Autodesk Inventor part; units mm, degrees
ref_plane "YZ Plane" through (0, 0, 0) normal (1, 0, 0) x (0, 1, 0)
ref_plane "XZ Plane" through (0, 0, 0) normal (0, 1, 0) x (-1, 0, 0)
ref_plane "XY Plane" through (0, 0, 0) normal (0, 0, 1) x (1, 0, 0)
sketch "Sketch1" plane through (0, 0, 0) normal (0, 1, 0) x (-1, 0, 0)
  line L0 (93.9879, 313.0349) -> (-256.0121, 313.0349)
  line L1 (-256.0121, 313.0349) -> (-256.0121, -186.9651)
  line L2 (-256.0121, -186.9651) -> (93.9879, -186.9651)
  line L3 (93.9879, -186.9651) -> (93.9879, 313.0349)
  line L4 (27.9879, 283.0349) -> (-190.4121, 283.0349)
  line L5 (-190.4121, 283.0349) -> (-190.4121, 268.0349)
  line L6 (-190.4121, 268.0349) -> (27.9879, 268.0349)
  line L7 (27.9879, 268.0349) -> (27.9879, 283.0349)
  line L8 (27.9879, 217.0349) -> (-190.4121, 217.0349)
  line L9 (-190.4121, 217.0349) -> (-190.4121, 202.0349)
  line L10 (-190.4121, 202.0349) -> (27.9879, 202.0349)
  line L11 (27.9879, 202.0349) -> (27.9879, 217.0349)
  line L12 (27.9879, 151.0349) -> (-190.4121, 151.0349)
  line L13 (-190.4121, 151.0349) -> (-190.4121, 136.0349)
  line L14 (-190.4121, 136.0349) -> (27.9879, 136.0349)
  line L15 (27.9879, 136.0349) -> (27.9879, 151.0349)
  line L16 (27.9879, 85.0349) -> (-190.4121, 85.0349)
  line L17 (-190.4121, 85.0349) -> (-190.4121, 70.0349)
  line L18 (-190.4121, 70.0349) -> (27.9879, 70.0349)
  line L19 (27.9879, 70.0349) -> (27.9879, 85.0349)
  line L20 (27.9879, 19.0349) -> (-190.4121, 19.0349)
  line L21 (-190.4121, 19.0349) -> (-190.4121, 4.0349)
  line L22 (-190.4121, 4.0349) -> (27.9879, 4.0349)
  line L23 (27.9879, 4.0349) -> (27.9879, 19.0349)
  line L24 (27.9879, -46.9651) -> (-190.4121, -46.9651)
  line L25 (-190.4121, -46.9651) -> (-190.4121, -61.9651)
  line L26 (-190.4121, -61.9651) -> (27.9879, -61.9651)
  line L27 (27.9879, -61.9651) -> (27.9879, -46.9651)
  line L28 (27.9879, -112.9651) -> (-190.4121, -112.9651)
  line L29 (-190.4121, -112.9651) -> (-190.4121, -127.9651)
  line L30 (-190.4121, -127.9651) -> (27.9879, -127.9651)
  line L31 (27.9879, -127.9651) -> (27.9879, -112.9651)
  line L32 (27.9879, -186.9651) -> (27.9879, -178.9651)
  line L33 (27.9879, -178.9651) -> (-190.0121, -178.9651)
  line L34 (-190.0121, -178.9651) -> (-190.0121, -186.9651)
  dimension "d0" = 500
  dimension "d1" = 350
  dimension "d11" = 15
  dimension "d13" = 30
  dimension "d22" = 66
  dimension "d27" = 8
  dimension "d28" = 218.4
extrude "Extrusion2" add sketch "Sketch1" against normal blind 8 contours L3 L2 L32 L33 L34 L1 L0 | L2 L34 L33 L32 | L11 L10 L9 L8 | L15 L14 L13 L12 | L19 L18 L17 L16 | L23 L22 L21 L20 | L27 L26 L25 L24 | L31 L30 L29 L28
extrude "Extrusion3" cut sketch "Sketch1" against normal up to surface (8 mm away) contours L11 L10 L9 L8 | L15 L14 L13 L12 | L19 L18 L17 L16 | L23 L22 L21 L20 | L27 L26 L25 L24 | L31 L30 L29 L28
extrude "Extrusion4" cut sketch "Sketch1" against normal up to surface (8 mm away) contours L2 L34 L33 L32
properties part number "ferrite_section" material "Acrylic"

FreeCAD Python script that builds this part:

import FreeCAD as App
import Part
import Sketcher
from FreeCAD import Vector


def add_polygon(sketch, points):
    """Adds a closed chain of lines whose ends are joined by coincident constraints."""
    first, n = sketch.GeometryCount, len(points)
    for a, b in zip(points, points[1:] + points[:1]):
        sketch.addGeometry(Part.LineSegment(App.Vector(*a, 0), App.Vector(*b, 0)), False)
    for i in range(n):
        sketch.addConstraint(Sketcher.Constraint("Coincident", first + i, 2, first + (i + 1) % n, 1))

doc = App.newDocument("Part")
body = doc.addObject("PartDesign::Body", "Body")

sketch1 = body.newObject("Sketcher::SketchObject", "Sketch")
sketch1.AttachmentSupport = (doc.getObject("XZ_Plane"), [""])
sketch1.MapMode = "FlatFace"
add_polygon(sketch1, [(-94, -187), (-94, 313), (256, 313), (256, -187)])
add_polygon(sketch1, [(190, 283), (-28, 283), (-28, 268), (190, 268)])
sketch1.addConstraint([
    Sketcher.Constraint("Vertical", 0),
    Sketcher.Constraint("Horizontal", 1),
    Sketcher.Constraint("Vertical", 2),
    Sketcher.Constraint("Horizontal", 3),
    Sketcher.Constraint("Horizontal", 4),
    Sketcher.Constraint("Vertical", 5),
    Sketcher.Constraint("Horizontal", 6),
    Sketcher.Constraint("Vertical", 7),
    Sketcher.Constraint("DistanceX", 1, 1, 1, 2, 350.0),
    Sketcher.Constraint("DistanceY", 0, 1, 0, 2, 500.0),
    Sketcher.Constraint("DistanceY", 5, 2, 5, 1, 15.0),
    Sketcher.Constraint("DistanceX", 4, 2, 4, 1, 218.4),
    Sketcher.Constraint("DistanceX", 0, 2, 4, 2, 66.0),
    Sketcher.Constraint("DistanceY", 4, 2, 0, 2, 30.0),
    Sketcher.Constraint("DistanceX", 0, 2, -1, 1, 93.988),
    Sketcher.Constraint("DistanceY", -1, 1, 0, 2, 313.035),
])
pad1 = body.newObject("PartDesign::Pad", "Pad")
pad1.Profile = sketch1
pad1.Length = 8

sketch2 = body.newObject("Sketcher::SketchObject", "Sketch001")
sketch2.AttachmentSupport = (doc.getObject("XZ_Plane"), [""])
sketch2.MapMode = "FlatFace"
add_polygon(sketch2, [(-28, 202), (-28, 217), (190, 217), (190, 202)])
add_polygon(sketch2, [(-28, 136), (-28, 151), (190, 151), (190, 136)])
add_polygon(sketch2, [(-28, 70), (-28, 85), (190, 85), (190, 70)])
add_polygon(sketch2, [(-28, 4), (-28, 19), (190, 19), (190, 4)])
add_polygon(sketch2, [(-28, -62), (-28, -47), (190, -47), (190, -62)])
add_polygon(sketch2, [(-28, -128), (-28, -113), (190, -113), (190, -128)])
sketch2.addConstraint([
    Sketcher.Constraint("Vertical", 0),
    Sketcher.Constraint("Horizontal", 1),
    Sketcher.Constraint("Vertical", 2),
    Sketcher.Constraint("Horizontal", 3),
    Sketcher.Constraint("Vertical", 4),
    Sketcher.Constraint("Horizontal", 5),
    Sketcher.Constraint("Vertical", 6),
    Sketcher.Constraint("Horizontal", 7),
    Sketcher.Constraint("Vertical", 8),
    Sketcher.Constraint("Horizontal", 9),
    Sketcher.Constraint("Vertical", 10),
    Sketcher.Constraint("Horizontal", 11),
    Sketcher.Constraint("Vertical", 12),
    Sketcher.Constraint("Horizontal", 13),
    Sketcher.Constraint("Vertical", 14),
    Sketcher.Constraint("Horizontal", 15),
    Sketcher.Constraint("Vertical", 16),
    Sketcher.Constraint("Horizontal", 17),
    Sketcher.Constraint("Vertical", 18),
    Sketcher.Constraint("Horizontal", 19),
    Sketcher.Constraint("Vertical", 20),
    Sketcher.Constraint("Horizontal", 21),
    Sketcher.Constraint("Vertical", 22),
    Sketcher.Constraint("Horizontal", 23),
    Sketcher.Constraint("Vertical", 3, 2, 4, 2),
    Sketcher.Constraint("Vertical", 2, 2, 5, 2),
    Sketcher.Constraint("Vertical", 7, 2, 8, 2),
    Sketcher.Constraint("Vertical", 6, 2, 9, 2),
    Sketcher.Constraint("Vertical", 11, 2, 12, 2),
    Sketcher.Constraint("Vertical", 10, 2, 13, 2),
    Sketcher.Constraint("Vertical", 15, 2, 16, 2),
    Sketcher.Constraint("Vertical", 14, 2, 17, 2),
    Sketcher.Constraint("Vertical", 19, 2, 20, 2),
    Sketcher.Constraint("Vertical", 18, 2, 21, 2),
    Sketcher.Constraint("Equal", 2, 4),
    Sketcher.Constraint("Equal", 6, 8),
    Sketcher.Constraint("Equal", 10, 12),
    Sketcher.Constraint("Equal", 14, 16),
    Sketcher.Constraint("Equal", 18, 20),
    Sketcher.Constraint("DistanceY", 0, 1, 0, 2, 15.0),
    Sketcher.Constraint("DistanceX", 1, 1, 1, 2, 218.4),
    Sketcher.Constraint("DistanceY", 4, 2, 0, 2, 66.0),
    Sketcher.Constraint("DistanceY", 8, 2, 4, 2, 66.0),
    Sketcher.Constraint("DistanceY", 12, 2, 8, 2, 66.0),
    Sketcher.Constraint("DistanceY", 16, 2, 12, 2, 66.0),
    Sketcher.Constraint("DistanceY", 20, 2, 16, 2, 66.0),
    Sketcher.Constraint("DistanceX", 0, 2, -1, 1, 27.988),
    Sketcher.Constraint("DistanceY", -1, 1, 0, 2, 217.035),
])
pocket1 = body.newObject("PartDesign::Pocket", "Pocket")
pocket1.Profile = sketch2
pocket1.Length = 8
pocket1.Reversed = True

sketch3 = body.newObject("Sketcher::SketchObject", "Sketch002")
sketch3.AttachmentSupport = (doc.getObject("XZ_Plane"), [""])
sketch3.MapMode = "FlatFace"
add_polygon(sketch3, [(190, -187), (-28, -187), (-28, -179), (190, -179)])
sketch3.addConstraint([
    Sketcher.Constraint("Horizontal", 0),
    Sketcher.Constraint("Vertical", 1),
    Sketcher.Constraint("Horizontal", 2),
    Sketcher.Constraint("Vertical", 3),
    Sketcher.Constraint("DistanceY", 1, 1, 1, 2, 8.0),
    Sketcher.Constraint("DistanceX", 0, 2, 0, 1, 218.0),
    Sketcher.Constraint("DistanceX", 0, 2, -1, 1, 27.988),
    Sketcher.Constraint("DistanceY", 0, 2, -1, 1, 186.965),
])
pocket2 = body.newObject("PartDesign::Pocket", "Pocket001")
pocket2.Profile = sketch3
pocket2.Length = 8
pocket2.Reversed = True

doc.recompute()
